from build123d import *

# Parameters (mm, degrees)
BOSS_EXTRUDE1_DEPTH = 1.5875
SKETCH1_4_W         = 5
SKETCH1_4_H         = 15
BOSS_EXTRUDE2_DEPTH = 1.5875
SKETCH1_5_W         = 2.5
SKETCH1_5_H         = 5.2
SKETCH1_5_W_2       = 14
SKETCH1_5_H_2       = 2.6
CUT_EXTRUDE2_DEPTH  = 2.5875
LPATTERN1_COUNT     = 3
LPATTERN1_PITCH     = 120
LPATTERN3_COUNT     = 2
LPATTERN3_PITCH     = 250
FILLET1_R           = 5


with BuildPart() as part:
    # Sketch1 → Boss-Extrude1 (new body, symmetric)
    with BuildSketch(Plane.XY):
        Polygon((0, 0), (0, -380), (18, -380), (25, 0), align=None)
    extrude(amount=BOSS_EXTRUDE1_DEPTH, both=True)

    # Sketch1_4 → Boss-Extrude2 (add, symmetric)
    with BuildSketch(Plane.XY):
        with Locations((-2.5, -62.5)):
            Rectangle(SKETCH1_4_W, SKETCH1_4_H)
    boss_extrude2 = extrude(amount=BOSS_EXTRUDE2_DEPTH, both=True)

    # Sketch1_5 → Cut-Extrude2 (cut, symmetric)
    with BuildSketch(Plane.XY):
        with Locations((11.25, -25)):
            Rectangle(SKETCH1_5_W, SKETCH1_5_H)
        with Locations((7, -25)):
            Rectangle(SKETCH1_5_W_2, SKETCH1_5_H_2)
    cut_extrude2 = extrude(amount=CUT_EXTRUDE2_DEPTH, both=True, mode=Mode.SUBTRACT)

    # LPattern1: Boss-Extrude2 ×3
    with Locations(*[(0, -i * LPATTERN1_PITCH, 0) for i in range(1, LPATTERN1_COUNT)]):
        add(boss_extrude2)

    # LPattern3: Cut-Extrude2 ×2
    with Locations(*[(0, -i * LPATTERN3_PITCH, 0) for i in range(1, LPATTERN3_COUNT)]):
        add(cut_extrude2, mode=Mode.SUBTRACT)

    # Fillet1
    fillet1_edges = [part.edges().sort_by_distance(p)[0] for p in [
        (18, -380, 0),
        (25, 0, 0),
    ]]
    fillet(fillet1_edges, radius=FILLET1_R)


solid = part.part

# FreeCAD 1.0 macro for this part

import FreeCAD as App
import Part
import Sketcher


def edges_at(feature, points):
    """Names of the edges that pass closest to the given points."""
    edges = feature.Shape.Edges
    near = lambda p: min(range(len(edges)), key=lambda i: edges[i].distToShape(Part.Vertex(*p))[0])
    return sorted({f"Edge{near(p) + 1}" for p in points})

doc = App.newDocument("Part")
body = doc.addObject("PartDesign::Body", "Body")

# Sketch on XY plane
sketch1 = body.newObject("Sketcher::SketchObject", "Sketch")
sketch1.AttachmentSupport = (doc.getObject("XY_Plane"), [""])
sketch1.MapMode = "FlatFace"
sketch1.addGeometry([
    Part.LineSegment(App.Vector(0, 0, 0), App.Vector(0, -380, 0)),
    Part.LineSegment(App.Vector(0, -380, 0), App.Vector(18, -380, 0)),
    Part.LineSegment(App.Vector(18, -380, 0), App.Vector(25, 0, 0)),
    Part.LineSegment(App.Vector(25, 0, 0), App.Vector(0, 0, 0)),
], False)
sketch1.addConstraint([
    Sketcher.Constraint("Coincident", 0, 2, 1, 1),
    Sketcher.Constraint("Coincident", 1, 2, 2, 1),
    Sketcher.Constraint("Coincident", 2, 2, 3, 1),
    Sketcher.Constraint("Coincident", 3, 2, 0, 1),
    Sketcher.Constraint("Vertical", 0),
    Sketcher.Constraint("Horizontal", 1),
    Sketcher.Constraint("Horizontal", 3),
    Sketcher.Constraint("Coincident", 3, 2, -1, 1),
    Sketcher.Constraint("DistanceX", 1, 1, 1, 2, 18.0),
    Sketcher.Constraint("DistanceX", 3, 2, 3, 1, 25.0),
    Sketcher.Constraint("DistanceY", 0, 2, 0, 1, 380.0),
])
pad1 = body.newObject("PartDesign::Pad", "Pad")
pad1.Profile = sketch1
pad1.Length = 3.175
pad1.Midplane = True

# Sketch on XY plane
sketch2 = body.newObject("Sketcher::SketchObject", "Sketch001")
sketch2.AttachmentSupport = (doc.getObject("XY_Plane"), [""])
sketch2.MapMode = "FlatFace"
sketch2.addGeometry([
    Part.LineSegment(App.Vector(-5, -55, 0), App.Vector(-5, -70, 0)),
    Part.LineSegment(App.Vector(-5, -70, 0), App.Vector(0, -70, 0)),
    Part.LineSegment(App.Vector(0, -70, 0), App.Vector(0, -55, 0)),
    Part.LineSegment(App.Vector(0, -55, 0), App.Vector(-5, -55, 0)),
], False)
sketch2.addConstraint([
    Sketcher.Constraint("Coincident", 0, 2, 1, 1),
    Sketcher.Constraint("Coincident", 1, 2, 2, 1),
    Sketcher.Constraint("Coincident", 2, 2, 3, 1),
    Sketcher.Constraint("Coincident", 3, 2, 0, 1),
    Sketcher.Constraint("Vertical", 0),
    Sketcher.Constraint("Horizontal", 1),
    Sketcher.Constraint("Vertical", 2),
    Sketcher.Constraint("Horizontal", 3),
    Sketcher.Constraint("PointOnObject", 1, 2, -2),
    Sketcher.Constraint("DistanceX", 1, 1, 1, 2, 5.0),
    Sketcher.Constraint("DistanceY", 0, 2, 0, 1, 15.0),
    Sketcher.Constraint("DistanceY", 0, 2, -1, 1, 70.0),
])
pad2 = body.newObject("PartDesign::Pad", "Pad001")
pad2.Profile = sketch2
pad2.Length = 3.175
pad2.Midplane = True

# Sketch on XY plane
sketch3 = body.newObject("Sketcher::SketchObject", "Sketch002")
sketch3.AttachmentSupport = (doc.getObject("XY_Plane"), [""])
sketch3.MapMode = "FlatFace"
sketch3.addGeometry([
    Part.LineSegment(App.Vector(10, -26.3, 0), App.Vector(10, -27.6, 0)),  # 0
    Part.LineSegment(App.Vector(10, -27.6, 0), App.Vector(12.5, -27.6, 0)),  # 1
    Part.LineSegment(App.Vector(12.5, -27.6, 0), App.Vector(12.5, -26.3, 0)),  # 2
    Part.LineSegment(App.Vector(12.5, -26.3, 0), App.Vector(14, -26.3, 0)),  # 3
    Part.LineSegment(App.Vector(14, -26.3, 0), App.Vector(14, -23.7, 0)),  # 4
    Part.LineSegment(App.Vector(14, -23.7, 0), App.Vector(12.5, -23.7, 0)),  # 5
    Part.LineSegment(App.Vector(12.5, -23.7, 0), App.Vector(12.5, -22.4, 0)),  # 6
    Part.LineSegment(App.Vector(12.5, -22.4, 0), App.Vector(10, -22.4, 0)),  # 7
    Part.LineSegment(App.Vector(10, -22.4, 0), App.Vector(10, -23.7, 0)),  # 8
    Part.LineSegment(App.Vector(10, -23.7, 0), App.Vector(0, -23.7, 0)),  # 9
    Part.LineSegment(App.Vector(0, -23.7, 0), App.Vector(0, -26.3, 0)),  # 10
    Part.LineSegment(App.Vector(0, -26.3, 0), App.Vector(10, -26.3, 0)),  # 11
], False)
sketch3.addConstraint([
    Sketcher.Constraint("Coincident", 0, 2, 1, 1),
    Sketcher.Constraint("Coincident", 1, 2, 2, 1),
    Sketcher.Constraint("Coincident", 2, 2, 3, 1),
    Sketcher.Constraint("Coincident", 3, 2, 4, 1),
    Sketcher.Constraint("Coincident", 4, 2, 5, 1),
    Sketcher.Constraint("Coincident", 5, 2, 6, 1),
    Sketcher.Constraint("Coincident", 6, 2, 7, 1),
    Sketcher.Constraint("Coincident", 7, 2, 8, 1),
    Sketcher.Constraint("Coincident", 8, 2, 9, 1),
    Sketcher.Constraint("Coincident", 9, 2, 10, 1),
    Sketcher.Constraint("Coincident", 10, 2, 11, 1),
    Sketcher.Constraint("Coincident", 11, 2, 0, 1),
    Sketcher.Constraint("Vertical", 0),
    Sketcher.Constraint("Horizontal", 1),
    Sketcher.Constraint("Vertical", 2),
    Sketcher.Constraint("Horizontal", 3),
    Sketcher.Constraint("Vertical", 4),
    Sketcher.Constraint("Horizontal", 5),
    Sketcher.Constraint("Vertical", 6),
    Sketcher.Constraint("Horizontal", 7),
    Sketcher.Constraint("Vertical", 8),
    Sketcher.Constraint("Horizontal", 9),
    Sketcher.Constraint("Vertical", 10),
    Sketcher.Constraint("Horizontal", 11),
    Sketcher.Constraint("PointOnObject", 9, 2, -2),
    Sketcher.Constraint("Horizontal", 5, 2, 8, 2),
    Sketcher.Constraint("Horizontal", 3, 2, 10, 2),
    Sketcher.Constraint("Vertical", 2, 2, 5, 2),
    Sketcher.Constraint("Vertical", 0, 2, 7, 2),
    Sketcher.Constraint("Equal", 2, 6),
    Sketcher.Constraint("DistanceX", 9, 2, 9, 1, 10.0),
    Sketcher.Constraint("DistanceX", 1, 1, 1, 2, 2.5),
    Sketcher.Constraint("DistanceX", 3, 1, 3, 2, 1.5),
    Sketcher.Constraint("DistanceY", 0, 2, 0, 1, 1.3),
    Sketcher.Constraint("DistanceY", 4, 1, 4, 2, 2.6),
    Sketcher.Constraint("DistanceY", 0, 2, -1, 1, 27.6),
])
pocket1 = body.newObject("PartDesign::Pocket", "Pocket")
pocket1.Profile = sketch3
pocket1.Length = 5.175
pocket1.Midplane = True
doc.recompute()

linearpattern = body.newObject("PartDesign::LinearPattern", "LinearPattern")
linearpattern.Originals = [pad2]
linearpattern.Direction = (doc.getObject("Y_Axis"), [""])
linearpattern.Mode = "offset"
linearpattern.Offset = 120
linearpattern.Occurrences = 3
linearpattern.Reversed = True
body.Tip = linearpattern
doc.recompute()

linearpattern2 = body.newObject("PartDesign::LinearPattern", "LinearPattern001")
linearpattern2.Originals = [pocket1]
linearpattern2.Direction = (doc.getObject("Y_Axis"), [""])
linearpattern2.Mode = "offset"
linearpattern2.Offset = 250
linearpattern2.Occurrences = 2
linearpattern2.Reversed = True
body.Tip = linearpattern2
doc.recompute()

fillet = body.newObject("PartDesign::Fillet", "Fillet")
fillet.Base = (linearpattern2, edges_at(linearpattern2, [(18, -380, 0), (25, 0, 0)]))
fillet.Radius = 5

doc.recompute()
